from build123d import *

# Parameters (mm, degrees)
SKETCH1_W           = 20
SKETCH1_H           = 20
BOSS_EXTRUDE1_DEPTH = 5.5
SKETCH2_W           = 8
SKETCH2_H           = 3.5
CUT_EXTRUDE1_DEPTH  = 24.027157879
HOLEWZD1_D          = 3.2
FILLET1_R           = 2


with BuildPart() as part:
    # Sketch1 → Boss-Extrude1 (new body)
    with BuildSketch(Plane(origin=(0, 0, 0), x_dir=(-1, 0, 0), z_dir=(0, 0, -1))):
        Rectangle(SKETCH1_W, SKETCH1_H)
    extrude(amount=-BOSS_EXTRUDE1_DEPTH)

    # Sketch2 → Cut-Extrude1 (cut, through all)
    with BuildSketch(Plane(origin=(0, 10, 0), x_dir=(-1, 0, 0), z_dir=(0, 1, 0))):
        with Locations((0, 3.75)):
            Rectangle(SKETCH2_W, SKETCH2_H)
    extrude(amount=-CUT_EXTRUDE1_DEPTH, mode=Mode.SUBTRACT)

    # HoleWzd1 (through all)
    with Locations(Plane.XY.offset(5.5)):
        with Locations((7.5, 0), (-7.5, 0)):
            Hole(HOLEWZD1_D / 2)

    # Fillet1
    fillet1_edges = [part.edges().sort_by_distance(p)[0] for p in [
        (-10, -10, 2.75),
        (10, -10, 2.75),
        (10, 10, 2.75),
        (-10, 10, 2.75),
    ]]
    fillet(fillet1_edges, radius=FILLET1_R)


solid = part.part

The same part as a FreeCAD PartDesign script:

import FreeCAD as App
import Part
import Sketcher


def edges_at(feature, points):
    """Names of the edges that pass closest to the given points."""
    edges = feature.Shape.Edges
    near = lambda p: min(range(len(edges)), key=lambda i: edges[i].distToShape(Part.Vertex(*p))[0])
    return sorted({f"Edge{near(p) + 1}" for p in points})


def add_polygon(sketch, points):
    """Adds a closed chain of lines whose ends are joined by coincident constraints."""
    first, n = sketch.GeometryCount, len(points)
    for a, b in zip(points, points[1:] + points[:1]):
        sketch.addGeometry(Part.LineSegment(App.Vector(*a, 0), App.Vector(*b, 0)), False)
    for i in range(n):
        sketch.addConstraint(Sketcher.Constraint("Coincident", first + i, 2, first + (i + 1) % n, 1))

doc = App.newDocument("Part")
body = doc.addObject("PartDesign::Body", "Body")

# Sketch on XY plane
sketch1 = body.newObject("Sketcher::SketchObject", "Sketch")
sketch1.AttachmentSupport = (doc.getObject("XY_Plane"), [""])
sketch1.MapMode = "FlatFace"
add_polygon(sketch1, [(10, 10), (10, -10), (-10, -10), (-10, 10)])  # lines 0-3
sketch1.addConstraint(Sketcher.Constraint("Vertical", 0))
sketch1.addConstraint(Sketcher.Constraint("Horizontal", 1))
sketch1.addConstraint(Sketcher.Constraint("Vertical", 2))
sketch1.addConstraint(Sketcher.Constraint("Horizontal", 3))
sketch1.addConstraint(Sketcher.Constraint("Symmetric", 0, 2, 2, 2, -1, 1))
sketch1.addConstraint(Sketcher.Constraint("Equal", 3, 0))
sketch1.addConstraint(Sketcher.Constraint("DistanceX", 1, 2, 1, 1, 20.0))
pad1 = body.newObject("PartDesign::Pad", "Pad")
pad1.Profile = sketch1
pad1.Length = 5.5

# Sketch on XZ plane
sketch2 = body.newObject("Sketcher::SketchObject", "Sketch001")
sketch2.AttachmentSupport = (doc.getObject("XZ_Plane"), [""])
sketch2.MapMode = "FlatFace"
sketch2.AttachmentOffset = App.Placement(App.Vector(0, 0, -10), App.Rotation())
add_polygon(sketch2, [(4, 5.5), (4, 2), (-4, 2), (-4, 5.5)])  # lines 0-3
sketch2.addConstraint(Sketcher.Constraint("Vertical", 0))
sketch2.addConstraint(Sketcher.Constraint("Horizontal", 1))
sketch2.addConstraint(Sketcher.Constraint("Vertical", 2))
sketch2.addConstraint(Sketcher.Constraint("Horizontal", 3))
sketch2.addConstraint(Sketcher.Constraint("DistanceX", 1, 2, 1, 1, 8.0))
sketch2.addConstraint(Sketcher.Constraint("DistanceY", 0, 2, 0, 1, 3.5))
sketch2.addConstraint(Sketcher.Constraint("DistanceX", -1, 1, 0, 2, 4.0))
sketch2.addConstraint(Sketcher.Constraint("DistanceY", -1, 1, 0, 2, 2.0))
pocket1 = body.newObject("PartDesign::Pocket", "Pocket")
pocket1.Profile = sketch2
pocket1.Type = "ThroughAll"
pocket1.Reversed = True

# Sketch on XY plane
sketch3 = body.newObject("Sketcher::SketchObject", "Sketch002")
sketch3.AttachmentSupport = (doc.getObject("XY_Plane"), [""])
sketch3.MapMode = "FlatFace"
sketch3.AttachmentOffset = App.Placement(App.Vector(0, 0, 5.5), App.Rotation())
sketch3.addGeometry(Part.Circle(App.Vector(7.5, 0, 0), App.Vector(0, 0, 1), 1.6), False)
sketch3.addGeometry(Part.Circle(App.Vector(-7.5, 0, 0), App.Vector(0, 0, 1), 1.6), False)
sketch3.addConstraint(Sketcher.Constraint("Equal", 0, 1))
sketch3.addConstraint(Sketcher.Constraint("Symmetric", 0, 3, 1, 3, -1, 1))
sketch3.addConstraint(Sketcher.Constraint("PointOnObject", 0, 3, -1))
sketch3.addConstraint(Sketcher.Constraint("Diameter", 0, 3.2))
sketch3.addConstraint(Sketcher.Constraint("DistanceX", 1, 3, 0, 3, 15.0))
doc.recompute()
hole = body.newObject("PartDesign::Hole", "Hole")
hole.Profile = sketch3
hole.ThreadType = "None"
hole.Diameter = 3.2
hole.DepthType = "ThroughAll"
doc.recompute()

fillet = body.newObject("PartDesign::Fillet", "Fillet")
fillet.Base = (hole, edges_at(hole, [
    (-10, -10, 2.75),
    (10, -10, 2.75),
    (10, 10, 2.75),
    (-10, 10, 2.75),
]))
fillet.Radius = 2

doc.recompute()
